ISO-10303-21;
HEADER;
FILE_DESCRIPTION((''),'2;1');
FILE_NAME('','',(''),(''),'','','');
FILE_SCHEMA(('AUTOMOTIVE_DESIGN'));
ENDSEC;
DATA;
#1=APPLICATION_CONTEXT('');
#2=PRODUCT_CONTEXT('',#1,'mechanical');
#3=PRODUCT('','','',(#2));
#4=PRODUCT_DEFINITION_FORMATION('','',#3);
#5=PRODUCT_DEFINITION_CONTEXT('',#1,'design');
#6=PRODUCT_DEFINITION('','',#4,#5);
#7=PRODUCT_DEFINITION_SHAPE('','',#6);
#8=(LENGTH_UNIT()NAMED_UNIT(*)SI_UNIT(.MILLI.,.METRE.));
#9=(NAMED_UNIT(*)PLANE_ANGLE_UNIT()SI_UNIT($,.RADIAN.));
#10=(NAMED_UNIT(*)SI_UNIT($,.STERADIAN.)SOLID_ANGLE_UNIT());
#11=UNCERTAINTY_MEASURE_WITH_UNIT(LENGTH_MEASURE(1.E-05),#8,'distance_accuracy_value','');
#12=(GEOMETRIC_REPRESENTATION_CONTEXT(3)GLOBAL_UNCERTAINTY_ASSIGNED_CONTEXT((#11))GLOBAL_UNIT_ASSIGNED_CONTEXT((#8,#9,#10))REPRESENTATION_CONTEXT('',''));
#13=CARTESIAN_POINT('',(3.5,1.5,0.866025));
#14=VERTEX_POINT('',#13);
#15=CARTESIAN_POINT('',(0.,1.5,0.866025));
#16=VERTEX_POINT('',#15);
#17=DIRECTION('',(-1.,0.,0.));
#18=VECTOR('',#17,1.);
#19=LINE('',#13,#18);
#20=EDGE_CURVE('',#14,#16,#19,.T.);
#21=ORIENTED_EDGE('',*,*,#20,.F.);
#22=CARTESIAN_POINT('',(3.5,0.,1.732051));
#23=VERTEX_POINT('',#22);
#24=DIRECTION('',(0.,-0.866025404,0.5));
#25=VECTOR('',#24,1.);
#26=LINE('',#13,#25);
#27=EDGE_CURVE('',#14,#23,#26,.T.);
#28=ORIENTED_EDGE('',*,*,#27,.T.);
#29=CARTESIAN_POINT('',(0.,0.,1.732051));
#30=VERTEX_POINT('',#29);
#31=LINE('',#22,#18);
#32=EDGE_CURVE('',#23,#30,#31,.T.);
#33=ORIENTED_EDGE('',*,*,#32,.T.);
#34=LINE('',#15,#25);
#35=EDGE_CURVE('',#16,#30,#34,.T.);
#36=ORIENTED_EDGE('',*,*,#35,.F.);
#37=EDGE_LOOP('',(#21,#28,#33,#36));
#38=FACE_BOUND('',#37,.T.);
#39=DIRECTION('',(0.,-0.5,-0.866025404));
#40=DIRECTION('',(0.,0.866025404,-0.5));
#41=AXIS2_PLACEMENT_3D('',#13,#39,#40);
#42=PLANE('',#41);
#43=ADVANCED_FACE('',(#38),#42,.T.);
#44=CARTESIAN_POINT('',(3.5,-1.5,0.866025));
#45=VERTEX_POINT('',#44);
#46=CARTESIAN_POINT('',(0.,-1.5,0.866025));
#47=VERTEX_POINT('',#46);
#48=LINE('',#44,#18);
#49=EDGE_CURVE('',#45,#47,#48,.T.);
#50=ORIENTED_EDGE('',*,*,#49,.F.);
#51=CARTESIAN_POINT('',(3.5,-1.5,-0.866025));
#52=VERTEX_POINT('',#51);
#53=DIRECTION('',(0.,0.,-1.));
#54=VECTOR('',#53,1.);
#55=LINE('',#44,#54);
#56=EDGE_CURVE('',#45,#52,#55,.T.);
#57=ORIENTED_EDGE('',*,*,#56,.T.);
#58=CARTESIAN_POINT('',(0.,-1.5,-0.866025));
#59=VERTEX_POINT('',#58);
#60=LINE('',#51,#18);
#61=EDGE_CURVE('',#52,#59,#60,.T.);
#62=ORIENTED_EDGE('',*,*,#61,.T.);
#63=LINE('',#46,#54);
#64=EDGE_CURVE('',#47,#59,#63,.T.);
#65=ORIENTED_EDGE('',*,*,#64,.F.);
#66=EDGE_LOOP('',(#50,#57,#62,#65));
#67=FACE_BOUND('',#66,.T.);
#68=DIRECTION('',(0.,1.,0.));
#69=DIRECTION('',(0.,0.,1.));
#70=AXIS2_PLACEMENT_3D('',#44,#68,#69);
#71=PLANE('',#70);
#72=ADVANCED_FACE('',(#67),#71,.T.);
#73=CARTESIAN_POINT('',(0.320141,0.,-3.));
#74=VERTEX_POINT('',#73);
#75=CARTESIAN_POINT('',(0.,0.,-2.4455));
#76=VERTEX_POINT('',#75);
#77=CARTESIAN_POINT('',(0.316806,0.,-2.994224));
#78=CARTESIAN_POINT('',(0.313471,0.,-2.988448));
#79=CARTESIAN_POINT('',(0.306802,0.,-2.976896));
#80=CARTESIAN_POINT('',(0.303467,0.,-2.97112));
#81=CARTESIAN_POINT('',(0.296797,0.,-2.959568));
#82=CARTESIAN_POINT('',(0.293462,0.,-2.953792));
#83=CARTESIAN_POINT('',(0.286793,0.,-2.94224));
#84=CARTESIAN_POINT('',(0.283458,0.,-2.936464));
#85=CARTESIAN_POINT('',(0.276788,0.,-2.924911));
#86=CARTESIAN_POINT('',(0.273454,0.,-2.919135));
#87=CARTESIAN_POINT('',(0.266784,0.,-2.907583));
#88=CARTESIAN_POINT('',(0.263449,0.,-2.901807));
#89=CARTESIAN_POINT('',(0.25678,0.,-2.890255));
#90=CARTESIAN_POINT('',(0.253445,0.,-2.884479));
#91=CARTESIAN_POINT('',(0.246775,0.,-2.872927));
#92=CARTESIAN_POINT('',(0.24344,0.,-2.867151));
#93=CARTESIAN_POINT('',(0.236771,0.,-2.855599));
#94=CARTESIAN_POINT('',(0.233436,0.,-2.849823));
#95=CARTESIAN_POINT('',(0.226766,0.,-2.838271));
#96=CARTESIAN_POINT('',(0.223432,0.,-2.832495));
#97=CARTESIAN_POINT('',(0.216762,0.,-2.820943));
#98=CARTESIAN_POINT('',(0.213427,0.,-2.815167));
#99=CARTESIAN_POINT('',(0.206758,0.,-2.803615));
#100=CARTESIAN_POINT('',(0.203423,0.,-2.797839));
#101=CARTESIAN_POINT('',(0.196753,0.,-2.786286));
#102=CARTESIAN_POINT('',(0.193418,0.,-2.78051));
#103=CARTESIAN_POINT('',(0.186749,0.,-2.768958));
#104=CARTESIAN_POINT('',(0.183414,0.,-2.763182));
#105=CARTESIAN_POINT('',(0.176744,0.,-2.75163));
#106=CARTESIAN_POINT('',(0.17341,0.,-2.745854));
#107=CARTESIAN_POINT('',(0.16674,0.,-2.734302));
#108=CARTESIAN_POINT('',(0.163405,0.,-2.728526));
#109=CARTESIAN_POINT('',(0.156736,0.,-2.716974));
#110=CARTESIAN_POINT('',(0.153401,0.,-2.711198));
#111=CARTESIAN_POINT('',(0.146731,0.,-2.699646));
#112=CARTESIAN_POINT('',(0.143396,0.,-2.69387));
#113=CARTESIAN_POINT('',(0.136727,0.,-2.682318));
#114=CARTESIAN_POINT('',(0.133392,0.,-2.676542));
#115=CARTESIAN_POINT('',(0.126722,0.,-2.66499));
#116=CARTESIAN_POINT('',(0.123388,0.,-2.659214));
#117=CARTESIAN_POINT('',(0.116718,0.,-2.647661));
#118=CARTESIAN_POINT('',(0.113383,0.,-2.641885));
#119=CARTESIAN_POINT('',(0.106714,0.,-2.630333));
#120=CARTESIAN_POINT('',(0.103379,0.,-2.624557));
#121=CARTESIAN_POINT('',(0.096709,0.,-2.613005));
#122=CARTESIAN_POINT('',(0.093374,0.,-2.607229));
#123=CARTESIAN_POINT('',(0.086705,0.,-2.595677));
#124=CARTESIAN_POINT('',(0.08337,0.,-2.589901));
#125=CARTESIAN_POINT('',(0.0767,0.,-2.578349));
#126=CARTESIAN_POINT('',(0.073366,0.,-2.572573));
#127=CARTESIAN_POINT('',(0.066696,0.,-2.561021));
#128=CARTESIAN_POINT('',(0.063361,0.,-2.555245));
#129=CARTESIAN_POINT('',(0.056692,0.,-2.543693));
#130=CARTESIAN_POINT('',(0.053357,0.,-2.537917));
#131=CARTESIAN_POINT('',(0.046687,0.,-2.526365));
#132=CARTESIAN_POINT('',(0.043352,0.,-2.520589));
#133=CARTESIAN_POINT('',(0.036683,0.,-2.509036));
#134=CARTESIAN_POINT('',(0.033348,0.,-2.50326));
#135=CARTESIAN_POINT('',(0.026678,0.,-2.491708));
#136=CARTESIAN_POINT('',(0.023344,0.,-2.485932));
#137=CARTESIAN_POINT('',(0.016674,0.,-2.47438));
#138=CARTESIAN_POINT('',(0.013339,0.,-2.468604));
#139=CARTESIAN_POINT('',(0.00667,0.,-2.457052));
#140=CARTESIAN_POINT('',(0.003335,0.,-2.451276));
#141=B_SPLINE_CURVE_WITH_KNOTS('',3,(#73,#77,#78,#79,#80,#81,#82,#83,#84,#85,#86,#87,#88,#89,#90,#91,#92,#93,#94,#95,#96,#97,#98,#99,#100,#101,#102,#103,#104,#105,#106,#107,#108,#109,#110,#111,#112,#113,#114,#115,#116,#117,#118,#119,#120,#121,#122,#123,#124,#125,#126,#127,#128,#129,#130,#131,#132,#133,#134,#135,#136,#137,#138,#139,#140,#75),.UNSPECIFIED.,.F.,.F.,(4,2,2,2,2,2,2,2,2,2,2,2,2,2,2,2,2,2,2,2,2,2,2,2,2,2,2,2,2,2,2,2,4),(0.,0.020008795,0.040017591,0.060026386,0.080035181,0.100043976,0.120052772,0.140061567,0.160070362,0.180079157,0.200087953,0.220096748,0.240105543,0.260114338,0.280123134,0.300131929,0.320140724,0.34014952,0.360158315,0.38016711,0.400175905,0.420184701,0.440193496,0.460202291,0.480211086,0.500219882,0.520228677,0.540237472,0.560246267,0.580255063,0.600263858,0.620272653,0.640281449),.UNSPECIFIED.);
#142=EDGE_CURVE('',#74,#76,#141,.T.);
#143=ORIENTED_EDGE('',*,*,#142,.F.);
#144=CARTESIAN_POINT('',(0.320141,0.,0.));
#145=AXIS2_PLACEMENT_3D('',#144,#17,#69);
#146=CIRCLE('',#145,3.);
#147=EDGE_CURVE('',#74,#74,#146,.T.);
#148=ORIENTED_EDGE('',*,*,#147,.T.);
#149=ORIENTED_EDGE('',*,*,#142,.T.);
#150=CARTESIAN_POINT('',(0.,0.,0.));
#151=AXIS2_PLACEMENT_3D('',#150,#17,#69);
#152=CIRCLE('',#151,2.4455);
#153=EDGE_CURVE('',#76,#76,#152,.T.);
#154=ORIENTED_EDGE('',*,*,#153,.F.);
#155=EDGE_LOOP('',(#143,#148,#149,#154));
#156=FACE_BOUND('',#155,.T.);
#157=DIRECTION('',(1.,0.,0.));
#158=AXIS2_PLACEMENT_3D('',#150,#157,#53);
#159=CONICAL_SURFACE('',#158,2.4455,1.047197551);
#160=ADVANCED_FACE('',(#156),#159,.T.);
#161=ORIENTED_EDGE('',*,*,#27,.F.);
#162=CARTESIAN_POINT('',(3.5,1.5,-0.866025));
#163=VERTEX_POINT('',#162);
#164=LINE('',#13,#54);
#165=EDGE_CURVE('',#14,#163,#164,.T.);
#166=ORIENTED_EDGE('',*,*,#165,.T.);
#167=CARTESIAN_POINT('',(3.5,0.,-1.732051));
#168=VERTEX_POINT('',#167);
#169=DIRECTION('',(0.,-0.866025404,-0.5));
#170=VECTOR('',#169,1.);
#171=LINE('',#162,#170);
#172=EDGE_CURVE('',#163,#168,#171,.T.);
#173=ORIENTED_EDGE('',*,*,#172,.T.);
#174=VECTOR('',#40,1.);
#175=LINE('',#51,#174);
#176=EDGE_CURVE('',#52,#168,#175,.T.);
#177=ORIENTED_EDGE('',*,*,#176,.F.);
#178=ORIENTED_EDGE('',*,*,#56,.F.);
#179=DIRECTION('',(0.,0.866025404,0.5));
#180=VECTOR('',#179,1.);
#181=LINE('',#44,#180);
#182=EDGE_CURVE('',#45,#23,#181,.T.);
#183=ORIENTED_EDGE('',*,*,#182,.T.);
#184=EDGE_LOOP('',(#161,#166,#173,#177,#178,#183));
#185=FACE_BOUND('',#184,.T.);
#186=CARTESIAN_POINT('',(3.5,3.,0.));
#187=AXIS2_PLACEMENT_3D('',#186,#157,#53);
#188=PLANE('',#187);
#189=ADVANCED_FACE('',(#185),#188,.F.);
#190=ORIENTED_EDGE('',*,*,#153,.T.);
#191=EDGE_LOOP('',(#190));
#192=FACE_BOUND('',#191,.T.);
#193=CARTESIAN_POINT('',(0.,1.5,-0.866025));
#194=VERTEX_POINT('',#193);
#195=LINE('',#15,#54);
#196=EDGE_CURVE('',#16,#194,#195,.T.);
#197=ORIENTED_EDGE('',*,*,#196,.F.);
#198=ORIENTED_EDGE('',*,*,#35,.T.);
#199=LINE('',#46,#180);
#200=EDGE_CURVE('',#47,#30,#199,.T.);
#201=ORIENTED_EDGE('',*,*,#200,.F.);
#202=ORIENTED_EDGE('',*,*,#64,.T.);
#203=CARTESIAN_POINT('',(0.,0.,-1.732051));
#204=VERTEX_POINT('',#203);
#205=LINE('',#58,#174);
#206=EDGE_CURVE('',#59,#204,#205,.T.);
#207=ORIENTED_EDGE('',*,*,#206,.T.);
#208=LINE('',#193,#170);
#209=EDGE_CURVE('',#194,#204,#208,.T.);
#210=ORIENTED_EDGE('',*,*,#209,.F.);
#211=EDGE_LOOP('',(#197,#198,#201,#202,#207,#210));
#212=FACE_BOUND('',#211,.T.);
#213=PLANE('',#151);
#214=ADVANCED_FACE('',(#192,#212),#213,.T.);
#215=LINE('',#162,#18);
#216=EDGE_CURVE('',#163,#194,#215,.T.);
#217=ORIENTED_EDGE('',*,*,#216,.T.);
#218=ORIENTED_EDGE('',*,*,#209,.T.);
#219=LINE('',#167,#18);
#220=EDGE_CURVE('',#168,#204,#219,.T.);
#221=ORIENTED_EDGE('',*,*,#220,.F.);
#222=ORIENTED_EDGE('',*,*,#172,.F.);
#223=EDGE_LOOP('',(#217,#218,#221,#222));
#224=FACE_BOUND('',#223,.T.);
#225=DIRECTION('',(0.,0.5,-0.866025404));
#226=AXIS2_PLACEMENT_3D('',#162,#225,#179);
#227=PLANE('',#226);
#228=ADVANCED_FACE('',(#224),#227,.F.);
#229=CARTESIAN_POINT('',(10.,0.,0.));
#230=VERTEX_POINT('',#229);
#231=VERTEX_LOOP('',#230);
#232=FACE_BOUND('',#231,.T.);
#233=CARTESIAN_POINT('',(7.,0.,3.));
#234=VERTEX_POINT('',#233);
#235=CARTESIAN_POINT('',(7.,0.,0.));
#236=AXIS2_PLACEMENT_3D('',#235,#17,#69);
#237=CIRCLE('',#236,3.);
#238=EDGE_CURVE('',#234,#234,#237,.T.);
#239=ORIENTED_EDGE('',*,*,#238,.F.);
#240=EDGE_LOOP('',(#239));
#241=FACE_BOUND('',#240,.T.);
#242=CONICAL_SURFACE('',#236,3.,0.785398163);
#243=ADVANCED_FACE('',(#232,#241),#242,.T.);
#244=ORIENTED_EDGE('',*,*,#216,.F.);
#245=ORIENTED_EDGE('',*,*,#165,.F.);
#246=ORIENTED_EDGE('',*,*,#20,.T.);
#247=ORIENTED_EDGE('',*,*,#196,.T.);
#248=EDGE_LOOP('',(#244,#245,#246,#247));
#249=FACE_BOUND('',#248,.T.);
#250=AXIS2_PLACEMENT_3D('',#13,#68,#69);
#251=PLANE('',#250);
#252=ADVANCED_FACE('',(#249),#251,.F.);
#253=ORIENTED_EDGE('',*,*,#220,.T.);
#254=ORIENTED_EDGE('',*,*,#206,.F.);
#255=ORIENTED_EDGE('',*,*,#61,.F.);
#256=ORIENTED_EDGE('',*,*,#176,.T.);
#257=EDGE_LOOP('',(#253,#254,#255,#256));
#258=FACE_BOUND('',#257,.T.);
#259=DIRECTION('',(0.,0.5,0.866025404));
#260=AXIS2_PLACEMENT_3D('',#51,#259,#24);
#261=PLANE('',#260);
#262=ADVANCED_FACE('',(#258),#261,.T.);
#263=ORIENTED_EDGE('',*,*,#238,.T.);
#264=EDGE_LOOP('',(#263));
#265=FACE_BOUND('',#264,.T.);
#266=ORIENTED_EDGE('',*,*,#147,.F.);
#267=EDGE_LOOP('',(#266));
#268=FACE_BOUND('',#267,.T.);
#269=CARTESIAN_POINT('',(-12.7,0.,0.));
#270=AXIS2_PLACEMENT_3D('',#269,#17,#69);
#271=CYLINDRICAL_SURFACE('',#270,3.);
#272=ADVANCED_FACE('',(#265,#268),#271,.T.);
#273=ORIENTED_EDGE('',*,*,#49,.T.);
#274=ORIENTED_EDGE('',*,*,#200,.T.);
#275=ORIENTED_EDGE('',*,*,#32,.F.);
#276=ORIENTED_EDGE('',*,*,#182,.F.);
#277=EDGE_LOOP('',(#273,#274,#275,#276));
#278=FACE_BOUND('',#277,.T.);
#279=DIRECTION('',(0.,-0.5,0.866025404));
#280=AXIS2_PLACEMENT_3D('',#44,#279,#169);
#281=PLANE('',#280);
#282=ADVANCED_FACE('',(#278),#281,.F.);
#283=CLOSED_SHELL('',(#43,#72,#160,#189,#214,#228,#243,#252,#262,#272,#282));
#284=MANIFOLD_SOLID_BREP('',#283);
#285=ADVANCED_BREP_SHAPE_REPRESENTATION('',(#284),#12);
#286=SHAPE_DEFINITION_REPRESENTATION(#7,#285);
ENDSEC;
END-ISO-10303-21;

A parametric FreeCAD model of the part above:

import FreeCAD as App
import Part
import Sketcher
from FreeCAD import Vector
Q = App.Units.Quantity

doc = App.newDocument("Part")
body = doc.addObject("PartDesign::Body", "Body")

sketch1 = body.newObject("Sketcher::SketchObject", "Sketch")
sketch1.AttachmentSupport = (doc.getObject("XY_Plane"), [""])
sketch1.MapMode = "FlatFace"
sketch1.addGeometry([
    Part.LineSegment(Vector(0, 2.4, 0), Vector(0, 0, 0)),
    Part.LineSegment(Vector(0, 0, 0), Vector(10, 0, 0)),
    Part.LineSegment(Vector(10, 0, 0), Vector(7, 3, 0)),
    Part.LineSegment(Vector(7, 3, 0), Vector(0.3, 3, 0)),
    Part.LineSegment(Vector(0.3, 3, 0), Vector(0, 2.4, 0)),
], False)
sketch1.addConstraint([
    Sketcher.Constraint("Coincident", 0, 2, 1, 1),
    Sketcher.Constraint("Coincident", 1, 2, 2, 1),
    Sketcher.Constraint("Coincident", 2, 2, 3, 1),
    Sketcher.Constraint("Coincident", 3, 2, 4, 1),
    Sketcher.Constraint("Coincident", 4, 2, 0, 1),
    Sketcher.Constraint("Vertical", 0),
    Sketcher.Constraint("Horizontal", 1),
    Sketcher.Constraint("Horizontal", 3),
    Sketcher.Constraint("Coincident", 0, 2, -1, 1),
    Sketcher.Constraint("DistanceX", 1, 1, 1, 2, 10.0),
    Sketcher.Constraint("Angle", 2, Q("135 deg")),
    Sketcher.Constraint("Angle", 4, Q("-120 deg")),
    Sketcher.Constraint("DistanceX", -1, 1, 2, 2, 7.0),
    Sketcher.Constraint("DistanceY", 0, 2, 0, 1, 2.4455),
])
revolution = body.newObject("PartDesign::Revolution", "Revolution")
revolution.Profile = sketch1
revolution.ReferenceAxis = (sketch1, ["H_Axis"])
revolution.Angle = 360

sketch2 = body.newObject("Sketcher::SketchObject", "Sketch001")
sketch2.AttachmentSupport = (doc.getObject("YZ_Plane"), [""])
sketch2.MapMode = "FlatFace"
sketch2.addGeometry([
    Part.LineSegment(Vector(1.5, 0.9, 0), Vector(1.5, -0.9, 0)),
    Part.LineSegment(Vector(1.5, -0.9, 0), Vector(0, -1.7, 0)),
    Part.LineSegment(Vector(0, -1.7, 0), Vector(-1.5, -0.9, 0)),
    Part.LineSegment(Vector(-1.5, -0.9, 0), Vector(-1.5, 0.9, 0)),
    Part.LineSegment(Vector(-1.5, 0.9, 0), Vector(0, 1.7, 0)),
    Part.LineSegment(Vector(0, 1.7, 0), Vector(1.5, 0.9, 0)),
], False)
sketch2.addConstraint([
    Sketcher.Constraint("Coincident", 0, 2, 1, 1),
    Sketcher.Constraint("Coincident", 1, 2, 2, 1),
    Sketcher.Constraint("Coincident", 2, 2, 3, 1),
    Sketcher.Constraint("Coincident", 3, 2, 4, 1),
    Sketcher.Constraint("Coincident", 4, 2, 5, 1),
    Sketcher.Constraint("Coincident", 5, 2, 0, 1),
    Sketcher.Constraint("Vertical", 0),
    Sketcher.Constraint("Vertical", 3),
    Sketcher.Constraint("Symmetric", 0, 2, 3, 2, -1, 1),
    Sketcher.Constraint("Symmetric", 1, 2, 4, 2, -1, 1),
    Sketcher.Constraint("PointOnObject", 1, 2, -2),
    Sketcher.Constraint("Parallel", 2, 5),
    Sketcher.Constraint("Horizontal", 0, 2, 2, 2),
    Sketcher.Constraint("Angle", 1, Q("-150 deg")),
    Sketcher.Constraint("DistanceX", 2, 2, 0, 2, 3.0),
    Sketcher.Constraint("DistanceY", 0, 2, 0, 1, 1.732051),
])
pocket1 = body.newObject("PartDesign::Pocket", "Pocket")
pocket1.Profile = sketch2
pocket1.Length = 3.5
pocket1.Reversed = True

doc.recompute()
